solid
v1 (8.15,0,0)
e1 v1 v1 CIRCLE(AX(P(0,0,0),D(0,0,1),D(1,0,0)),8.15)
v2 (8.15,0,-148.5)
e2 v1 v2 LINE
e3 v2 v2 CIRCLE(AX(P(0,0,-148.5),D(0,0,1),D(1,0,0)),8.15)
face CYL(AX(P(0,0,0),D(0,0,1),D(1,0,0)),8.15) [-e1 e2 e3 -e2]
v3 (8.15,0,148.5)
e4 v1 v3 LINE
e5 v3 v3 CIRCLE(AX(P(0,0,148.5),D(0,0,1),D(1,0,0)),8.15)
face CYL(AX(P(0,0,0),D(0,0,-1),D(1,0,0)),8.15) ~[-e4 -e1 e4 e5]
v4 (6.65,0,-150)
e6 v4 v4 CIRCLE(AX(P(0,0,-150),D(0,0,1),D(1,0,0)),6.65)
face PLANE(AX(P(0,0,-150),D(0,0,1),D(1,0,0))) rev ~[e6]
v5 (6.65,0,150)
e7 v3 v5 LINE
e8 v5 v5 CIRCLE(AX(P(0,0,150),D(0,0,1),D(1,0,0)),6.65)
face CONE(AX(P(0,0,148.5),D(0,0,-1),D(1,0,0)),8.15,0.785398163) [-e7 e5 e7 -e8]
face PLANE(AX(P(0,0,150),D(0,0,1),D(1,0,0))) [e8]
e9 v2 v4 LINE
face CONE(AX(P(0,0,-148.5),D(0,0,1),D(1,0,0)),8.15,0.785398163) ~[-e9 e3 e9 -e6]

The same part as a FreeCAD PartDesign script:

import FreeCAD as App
import Part
import Sketcher
Q = App.Units.Quantity


def edges_at(feature, points):
    """Names of the edges that pass closest to the given points."""
    edges = feature.Shape.Edges
    near = lambda p: min(range(len(edges)), key=lambda i: edges[i].distToShape(Part.Vertex(*p))[0])
    return sorted({f"Edge{near(p) + 1}" for p in points})

doc = App.newDocument("Part")
body = doc.addObject("PartDesign::Body", "Body")

sketch1 = doc.addObject("Sketcher::SketchObject", "Sketch")
body.addObject(sketch1)
sketch1.AttachmentSupport = (doc.XY_Plane, [""])
sketch1.MapMode = "FlatFace"
sketch1.addGeometry(Part.Circle(App.Vector(0, 0, 0), App.Vector(0, 0, 1), 8), False)
sketch1.addConstraint([
    Sketcher.Constraint("Coincident", 0, 3, -1, 1),
    Sketcher.Constraint("Diameter", 0, Q("16.3 mm")),
])
pad1 = doc.addObject("PartDesign::Pad", "Pad")
body.addObject(pad1)
pad1.Profile = sketch1
pad1.Length = 300
pad1.Midplane = True
doc.recompute()

chamfer = doc.addObject("PartDesign::Chamfer", "Chamfer")
body.addObject(chamfer)
chamfer.Base = (pad1, edges_at(pad1, [(-7.598, -2.947, 150), (-7.598, 2.947, -150)]))
chamfer.Size = 1.5

doc.recompute()
